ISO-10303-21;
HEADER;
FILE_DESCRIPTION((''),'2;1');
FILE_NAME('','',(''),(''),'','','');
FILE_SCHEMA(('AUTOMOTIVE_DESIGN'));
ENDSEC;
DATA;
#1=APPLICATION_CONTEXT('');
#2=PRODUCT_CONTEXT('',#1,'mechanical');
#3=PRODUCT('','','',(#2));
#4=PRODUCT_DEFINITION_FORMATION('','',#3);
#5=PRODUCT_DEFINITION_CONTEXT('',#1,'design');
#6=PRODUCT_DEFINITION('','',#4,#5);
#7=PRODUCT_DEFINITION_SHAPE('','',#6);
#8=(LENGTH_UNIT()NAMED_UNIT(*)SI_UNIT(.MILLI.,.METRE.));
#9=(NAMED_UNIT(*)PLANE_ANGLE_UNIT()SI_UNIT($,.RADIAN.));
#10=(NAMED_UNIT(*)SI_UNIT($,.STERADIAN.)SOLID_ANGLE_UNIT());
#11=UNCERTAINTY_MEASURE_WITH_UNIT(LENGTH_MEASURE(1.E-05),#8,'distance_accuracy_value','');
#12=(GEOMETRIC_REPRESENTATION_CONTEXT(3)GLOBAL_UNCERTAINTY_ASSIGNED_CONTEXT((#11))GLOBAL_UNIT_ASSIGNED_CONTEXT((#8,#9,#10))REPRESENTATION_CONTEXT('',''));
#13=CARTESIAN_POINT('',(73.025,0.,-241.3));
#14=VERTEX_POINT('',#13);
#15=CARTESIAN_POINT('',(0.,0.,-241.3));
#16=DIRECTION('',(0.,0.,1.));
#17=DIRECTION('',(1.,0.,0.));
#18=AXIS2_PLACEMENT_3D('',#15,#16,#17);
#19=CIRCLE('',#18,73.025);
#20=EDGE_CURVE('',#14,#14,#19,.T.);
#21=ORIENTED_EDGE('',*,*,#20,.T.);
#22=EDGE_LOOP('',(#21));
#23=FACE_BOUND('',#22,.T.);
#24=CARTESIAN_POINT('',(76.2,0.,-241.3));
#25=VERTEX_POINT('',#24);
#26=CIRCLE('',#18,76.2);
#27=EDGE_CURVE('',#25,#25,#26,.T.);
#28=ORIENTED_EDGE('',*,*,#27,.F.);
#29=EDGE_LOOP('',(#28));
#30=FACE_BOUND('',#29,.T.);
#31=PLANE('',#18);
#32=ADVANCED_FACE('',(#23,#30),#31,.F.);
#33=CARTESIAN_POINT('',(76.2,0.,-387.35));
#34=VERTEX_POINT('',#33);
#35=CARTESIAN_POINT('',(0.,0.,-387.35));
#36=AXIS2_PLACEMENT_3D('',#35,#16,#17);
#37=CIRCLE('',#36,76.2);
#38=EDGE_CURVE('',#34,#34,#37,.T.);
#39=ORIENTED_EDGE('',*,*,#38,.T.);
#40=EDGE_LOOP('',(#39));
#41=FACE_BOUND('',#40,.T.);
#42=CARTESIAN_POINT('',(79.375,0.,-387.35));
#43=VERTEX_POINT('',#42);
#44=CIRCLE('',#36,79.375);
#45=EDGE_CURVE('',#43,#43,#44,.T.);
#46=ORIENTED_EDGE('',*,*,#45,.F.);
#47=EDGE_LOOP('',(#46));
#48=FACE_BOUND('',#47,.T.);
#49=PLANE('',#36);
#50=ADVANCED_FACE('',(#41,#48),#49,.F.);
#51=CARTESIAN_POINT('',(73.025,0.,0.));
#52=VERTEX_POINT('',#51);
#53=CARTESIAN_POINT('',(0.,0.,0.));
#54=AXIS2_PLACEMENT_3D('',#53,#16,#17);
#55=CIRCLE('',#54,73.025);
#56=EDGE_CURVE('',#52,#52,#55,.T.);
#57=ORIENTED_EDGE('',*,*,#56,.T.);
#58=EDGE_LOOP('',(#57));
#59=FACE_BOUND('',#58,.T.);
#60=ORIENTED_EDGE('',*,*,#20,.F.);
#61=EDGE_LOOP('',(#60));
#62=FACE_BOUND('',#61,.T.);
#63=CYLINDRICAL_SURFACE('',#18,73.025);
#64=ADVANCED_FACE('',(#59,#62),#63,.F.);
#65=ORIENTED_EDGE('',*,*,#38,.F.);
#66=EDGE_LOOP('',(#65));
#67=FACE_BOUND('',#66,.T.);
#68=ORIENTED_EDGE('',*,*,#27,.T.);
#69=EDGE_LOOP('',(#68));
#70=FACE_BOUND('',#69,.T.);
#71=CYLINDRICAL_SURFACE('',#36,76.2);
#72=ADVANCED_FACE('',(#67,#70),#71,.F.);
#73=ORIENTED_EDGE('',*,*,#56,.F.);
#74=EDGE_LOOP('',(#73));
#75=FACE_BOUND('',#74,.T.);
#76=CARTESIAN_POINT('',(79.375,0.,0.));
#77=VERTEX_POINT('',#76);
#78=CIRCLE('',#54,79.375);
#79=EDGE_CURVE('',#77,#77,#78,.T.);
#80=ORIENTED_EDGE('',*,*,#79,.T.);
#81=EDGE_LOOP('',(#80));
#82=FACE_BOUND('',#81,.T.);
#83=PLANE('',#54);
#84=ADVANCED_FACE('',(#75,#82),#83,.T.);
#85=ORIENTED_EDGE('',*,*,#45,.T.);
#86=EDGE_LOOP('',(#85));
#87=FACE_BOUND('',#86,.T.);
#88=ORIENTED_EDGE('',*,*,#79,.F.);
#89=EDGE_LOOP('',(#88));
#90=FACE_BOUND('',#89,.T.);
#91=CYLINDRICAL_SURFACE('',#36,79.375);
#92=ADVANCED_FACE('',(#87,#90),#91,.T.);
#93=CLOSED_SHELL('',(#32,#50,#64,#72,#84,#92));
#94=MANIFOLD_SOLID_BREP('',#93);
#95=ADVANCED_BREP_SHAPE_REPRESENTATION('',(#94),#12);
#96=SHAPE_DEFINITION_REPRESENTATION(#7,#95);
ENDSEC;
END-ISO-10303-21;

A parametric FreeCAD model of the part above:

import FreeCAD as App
import Part
import Sketcher
from FreeCAD import Vector
Q = App.Units.Quantity

doc = App.newDocument("Part")
params = doc.addObject("Spreadsheet::Sheet", "Params")
for row, (alias, value) in enumerate([
    ("sketch1_diameter", "6 in"),
    ("sketch1_diameter2", "5.75 in"),
    ("pad1_length", "9.5 in"),
    ("sketch2_diameter", "6 in"),
    ("sketch2_diameter2", "6.25 in"),
    ("pad2_length", "15.25 in"),
], start=1):
    params.set(f"A{row}", alias)
    params.set(f"B{row}", "=" + value)
    params.setAlias(f"B{row}", alias)

body = doc.addObject("PartDesign::Body", "Body")

# Sketch on XY plane
sketch1 = doc.addObject("Sketcher::SketchObject", "Sketch")
body.addObject(sketch1)
sketch1.AttachmentSupport = (doc.XY_Plane, [""])
sketch1.MapMode = "FlatFace"
sketch1.addGeometry([
    Part.Circle(Vector(0, 0, 0), Vector(0, 0, 1), 76),
    Part.Circle(Vector(0, 0, 0), Vector(0, 0, 1), 73),
], False)
sketch1.addConstraint([
    Sketcher.Constraint("Coincident", 0, 3, -1, 1),
    Sketcher.Constraint("Coincident", 1, 3, -1, 1),
    Sketcher.Constraint("Diameter", 0, Q("6 in")),
    Sketcher.Constraint("Diameter", 1, Q("5.75 in")),
])
sketch1.setExpression("Constraints[2]", "Params.sketch1_diameter")
sketch1.setExpression("Constraints[3]", "Params.sketch1_diameter2")
pad1 = doc.addObject("PartDesign::Pad", "Pad")
body.addObject(pad1)
pad1.Profile = sketch1
pad1.setExpression("Length", "Params.pad1_length")
pad1.Reversed = True

# Sketch on XY plane
sketch2 = doc.addObject("Sketcher::SketchObject", "Sketch001")
body.addObject(sketch2)
sketch2.AttachmentSupport = (doc.XY_Plane, [""])
sketch2.MapMode = "FlatFace"
sketch2.addGeometry([
    Part.Circle(Vector(0, 0, 0), Vector(0, 0, 1), 79),
    Part.Circle(Vector(0, 0, 0), Vector(0, 0, 1), 76),
], False)
sketch2.addConstraint([
    Sketcher.Constraint("Coincident", 0, 3, -1, 1),
    Sketcher.Constraint("Coincident", 1, 3, -1, 1),
    Sketcher.Constraint("Diameter", 1, Q("6 in")),
    Sketcher.Constraint("Diameter", 0, Q("6.25 in")),
])
sketch2.setExpression("Constraints[2]", "Params.sketch2_diameter")
sketch2.setExpression("Constraints[3]", "Params.sketch2_diameter2")
pad2 = doc.addObject("PartDesign::Pad", "Pad001")
body.addObject(pad2)
pad2.Profile = sketch2
pad2.setExpression("Length", "Params.pad2_length")
pad2.Reversed = True

doc.recompute()
